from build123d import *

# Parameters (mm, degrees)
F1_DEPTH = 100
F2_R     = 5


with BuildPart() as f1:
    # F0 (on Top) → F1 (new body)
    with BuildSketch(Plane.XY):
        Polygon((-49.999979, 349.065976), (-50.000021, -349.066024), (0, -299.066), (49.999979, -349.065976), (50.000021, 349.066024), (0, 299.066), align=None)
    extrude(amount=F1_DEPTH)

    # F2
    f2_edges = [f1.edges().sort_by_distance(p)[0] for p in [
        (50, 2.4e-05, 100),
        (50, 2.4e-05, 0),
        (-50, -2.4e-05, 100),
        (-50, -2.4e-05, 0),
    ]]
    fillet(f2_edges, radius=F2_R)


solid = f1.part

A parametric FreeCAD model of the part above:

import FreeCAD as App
import Part
import Sketcher

V = App.Vector
Q = App.Units.Quantity


def edges_at(feature, points):
    """Names of the edges that pass closest to the given points."""
    edges = feature.Shape.Edges
    near = lambda p: min(range(len(edges)), key=lambda i: edges[i].distToShape(Part.Vertex(*p))[0])
    return sorted({f"Edge{near(p) + 1}" for p in points})

doc = App.newDocument("Part")
body = doc.addObject("PartDesign::Body", "Body")

sketch1 = body.newObject("Sketcher::SketchObject", "Sketch")
sketch1.AttachmentSupport = (doc.getObject("XY_Plane"), [""])
sketch1.MapMode = "FlatFace"
sketch1.addGeometry(Part.LineSegment(V(-50, 349, 0), V(-50, -349, 0)), False)
sketch1.addGeometry(Part.LineSegment(V(-50, -349, 0), V(0, -299, 0)), False)
sketch1.addGeometry(Part.LineSegment(V(0, -299, 0), V(50, -349, 0)), False)
sketch1.addGeometry(Part.LineSegment(V(50, -349, 0), V(50, 349, 0)), False)
sketch1.addGeometry(Part.LineSegment(V(50, 349, 0), V(0, 299, 0)), False)
sketch1.addGeometry(Part.LineSegment(V(0, 299, 0), V(-50, 349, 0)), False)
sketch1.addConstraint(Sketcher.Constraint("Coincident", 0, 2, 1, 1))
sketch1.addConstraint(Sketcher.Constraint("Coincident", 1, 2, 2, 1))
sketch1.addConstraint(Sketcher.Constraint("Coincident", 2, 2, 3, 1))
sketch1.addConstraint(Sketcher.Constraint("Coincident", 3, 2, 4, 1))
sketch1.addConstraint(Sketcher.Constraint("Coincident", 4, 2, 5, 1))
sketch1.addConstraint(Sketcher.Constraint("Coincident", 5, 2, 0, 1))
sketch1.addConstraint(Sketcher.Constraint("Symmetric", 0, 2, 3, 2, -1, 1))
sketch1.addConstraint(Sketcher.Constraint("Symmetric", 1, 2, 4, 2, -1, 1))
sketch1.addConstraint(Sketcher.Constraint("Symmetric", 2, 2, 5, 2, -1, 1))
sketch1.addConstraint(Sketcher.Constraint("PointOnObject", 1, 2, -2))
sketch1.addConstraint(Sketcher.Constraint("Perpendicular", 1, 2))
sketch1.addConstraint(Sketcher.Constraint("Angle", 0, Q("-90.000003 deg")))
sketch1.addConstraint(Sketcher.Constraint("Angle", 1, Q("45.000002 deg")))
sketch1.addConstraint(Sketcher.Constraint("DistanceX", 0, 2, 2, 2, 100.0))
sketch1.addConstraint(Sketcher.Constraint("Distance", 0, 698.132))
pad1 = body.newObject("PartDesign::Pad", "Pad")
pad1.Profile = sketch1
pad1.Length = 100
doc.recompute()

fillet = body.newObject("PartDesign::Fillet", "Fillet")
fillet.Base = (pad1, edges_at(pad1, [
    (50, 0, 100),
    (50, 0, 0),
    (-50, 0, 100),
    (-50, 0, 0),
]))
fillet.Radius = 5

doc.recompute()
